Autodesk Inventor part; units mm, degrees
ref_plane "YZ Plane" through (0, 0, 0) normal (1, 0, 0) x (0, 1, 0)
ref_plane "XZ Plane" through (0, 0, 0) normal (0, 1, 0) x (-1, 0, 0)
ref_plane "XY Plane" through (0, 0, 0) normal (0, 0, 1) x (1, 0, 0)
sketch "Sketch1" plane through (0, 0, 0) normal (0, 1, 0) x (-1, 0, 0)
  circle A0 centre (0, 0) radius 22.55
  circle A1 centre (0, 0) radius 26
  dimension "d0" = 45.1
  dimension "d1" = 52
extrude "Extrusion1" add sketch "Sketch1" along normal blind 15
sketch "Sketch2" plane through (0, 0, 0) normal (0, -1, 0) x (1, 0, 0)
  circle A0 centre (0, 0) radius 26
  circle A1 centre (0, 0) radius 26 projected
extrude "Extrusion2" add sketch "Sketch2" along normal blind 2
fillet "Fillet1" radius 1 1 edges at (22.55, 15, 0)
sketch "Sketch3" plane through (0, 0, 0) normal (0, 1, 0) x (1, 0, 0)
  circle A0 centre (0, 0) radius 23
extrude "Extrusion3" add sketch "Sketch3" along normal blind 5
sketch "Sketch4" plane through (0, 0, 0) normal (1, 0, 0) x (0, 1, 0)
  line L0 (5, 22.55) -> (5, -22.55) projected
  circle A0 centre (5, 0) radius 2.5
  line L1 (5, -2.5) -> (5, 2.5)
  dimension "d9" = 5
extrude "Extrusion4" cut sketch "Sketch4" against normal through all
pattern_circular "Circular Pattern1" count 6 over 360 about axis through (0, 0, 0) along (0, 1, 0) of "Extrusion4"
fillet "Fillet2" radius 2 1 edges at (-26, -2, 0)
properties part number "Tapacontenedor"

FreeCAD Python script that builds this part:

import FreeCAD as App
import Part
import Sketcher

V = App.Vector


def edges_at(feature, points):
    """Names of the edges that pass closest to the given points."""
    edges = feature.Shape.Edges
    near = lambda p: min(range(len(edges)), key=lambda i: edges[i].distToShape(Part.Vertex(*p))[0])
    return sorted({f"Edge{near(p) + 1}" for p in points})

doc = App.newDocument("Part")
body = doc.addObject("PartDesign::Body", "Body")

# Sketch on XZ plane
sketch1 = body.newObject("Sketcher::SketchObject", "Sketch")
sketch1.AttachmentSupport = (doc.getObject("XZ_Plane"), [""])
sketch1.MapMode = "FlatFace"
sketch1.addGeometry([
    Part.Circle(V(0, 0, 0), V(0, 0, 1), 26),
    Part.Circle(V(0, 0, 0), V(0, 0, 1), 23),
], False)
sketch1.addConstraint([
    Sketcher.Constraint("Coincident", 0, 3, -1, 1),
    Sketcher.Constraint("Coincident", 1, 3, -1, 1),
    Sketcher.Constraint("Diameter", 0, 52.0),
    Sketcher.Constraint("Diameter", 1, 45.1),
])
pad1 = body.newObject("PartDesign::Pad", "Pad")
pad1.Profile = sketch1
pad1.Length = 15
pad1.Reversed = True

# Sketch on XZ plane
sketch2 = body.newObject("Sketcher::SketchObject", "Sketch001")
sketch2.AttachmentSupport = (doc.getObject("XZ_Plane"), [""])
sketch2.MapMode = "FlatFace"
sketch2.addGeometry(Part.Circle(V(0, 0, 0), V(0, 0, 1), 26), False)
sketch2.addConstraint([
    Sketcher.Constraint("Coincident", 0, 3, -1, 1),
    Sketcher.Constraint("Diameter", 0, 52.0),
])
pad2 = body.newObject("PartDesign::Pad", "Pad001")
pad2.Profile = sketch2
pad2.Length = 2
doc.recompute()

fillet = body.newObject("PartDesign::Fillet", "Fillet")
fillet.Base = (pad2, edges_at(pad2, [(22.55, 15, 0)]))
fillet.Radius = 1

# Sketch on XZ plane
sketch3 = body.newObject("Sketcher::SketchObject", "Sketch002")
sketch3.AttachmentSupport = (doc.getObject("XZ_Plane"), [""])
sketch3.MapMode = "FlatFace"
sketch3.addGeometry(Part.Circle(V(0, 0, 0), V(0, 0, 1), 23), False)
sketch3.addConstraint([
    Sketcher.Constraint("Coincident", 0, 3, -1, 1),
    Sketcher.Constraint("Diameter", 0, 46.0),
])
pad3 = body.newObject("PartDesign::Pad", "Pad002")
pad3.Profile = sketch3
pad3.Length = 5
pad3.Reversed = True

# Sketch on YZ plane
sketch4 = body.newObject("Sketcher::SketchObject", "Sketch003")
sketch4.AttachmentSupport = (doc.getObject("YZ_Plane"), [""])
sketch4.MapMode = "FlatFace"
sketch4.addGeometry(Part.Circle(V(5, 0, 0), V(0, 0, 1), 2.5), False)
sketch4.addConstraint([
    Sketcher.Constraint("PointOnObject", 0, 3, -1),
    Sketcher.Constraint("Diameter", 0, 5.0),
    Sketcher.Constraint("DistanceX", -1, 1, 0, 3, 5.0),
])
pocket1 = body.newObject("PartDesign::Pocket", "Pocket")
pocket1.Profile = sketch4
pocket1.Type = "ThroughAll"
doc.recompute()

polarpattern = body.newObject("PartDesign::PolarPattern", "PolarPattern")
polarpattern.Originals = [pocket1]
polarpattern.Axis = (doc.getObject("Y_Axis"), [""])
polarpattern.Angle = 360
polarpattern.Occurrences = 6
body.Tip = polarpattern
doc.recompute()

fillet2 = body.newObject("PartDesign::Fillet", "Fillet001")
fillet2.Base = (polarpattern, edges_at(polarpattern, [(-26, -2, 0)]))
fillet2.Radius = 2

doc.recompute()
